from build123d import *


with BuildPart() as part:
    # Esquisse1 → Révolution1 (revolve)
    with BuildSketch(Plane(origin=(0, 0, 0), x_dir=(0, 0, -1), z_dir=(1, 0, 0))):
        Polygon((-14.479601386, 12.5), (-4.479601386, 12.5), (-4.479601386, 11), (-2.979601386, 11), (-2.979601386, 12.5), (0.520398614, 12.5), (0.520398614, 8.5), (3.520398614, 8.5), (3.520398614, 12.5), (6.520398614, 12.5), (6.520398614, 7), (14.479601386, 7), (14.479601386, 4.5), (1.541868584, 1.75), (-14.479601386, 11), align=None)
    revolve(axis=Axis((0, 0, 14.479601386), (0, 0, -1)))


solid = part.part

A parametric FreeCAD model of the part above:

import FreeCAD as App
import Part
import Sketcher

V = App.Vector
Q = App.Units.Quantity

doc = App.newDocument("Part")
params = doc.addObject("Spreadsheet::Sheet", "Params")
for row, (alias, value) in enumerate([
    ("sketch1_width", "4 mm"),
    ("sketch1_height", "10 mm"),
    ("sketch1_height2", "3 mm"),
    ("sketch1_width2", "1.5 mm"),
    ("sketch1_width3", "2.5 mm"),
    ("revolution_angle", "360 deg"),
], start=1):
    params.set(f"A{row}", alias)
    params.set(f"B{row}", "=" + value)
    params.setAlias(f"B{row}", alias)

body = doc.addObject("PartDesign::Body", "Body")

sketch1 = body.newObject("Sketcher::SketchObject", "Sketch")
sketch1.AttachmentSupport = (doc.getObject("YZ_Plane"), [""])
sketch1.MapMode = "FlatFace"
sketch1.addGeometry(Part.LineSegment(V(12.5, 4.5, 0), V(12.5, 14.5, 0)), False)
sketch1.addGeometry(Part.LineSegment(V(12.5, 14.5, 0), V(11, 14.5, 0)), False)
sketch1.addGeometry(Part.LineSegment(V(11, 14.5, 0), V(1.8, -1.5, 0)), False)
sketch1.addGeometry(Part.LineSegment(V(1.8, -1.5, 0), V(4.5, -14.5, 0)), False)
sketch1.addGeometry(Part.LineSegment(V(4.5, -14.5, 0), V(7, -14.5, 0)), False)
sketch1.addGeometry(Part.LineSegment(V(7, -14.5, 0), V(7, -6.5, 0)), False)
sketch1.addGeometry(Part.LineSegment(V(7, -6.5, 0), V(12.5, -6.5, 0)), False)
sketch1.addGeometry(Part.LineSegment(V(12.5, -6.5, 0), V(12.5, -3.5, 0)), False)
sketch1.addGeometry(Part.LineSegment(V(12.5, -3.5, 0), V(8.5, -3.5, 0)), False)
sketch1.addGeometry(Part.LineSegment(V(8.5, -3.5, 0), V(8.5, -0.5, 0)), False)
sketch1.addGeometry(Part.LineSegment(V(8.5, -0.5, 0), V(12.5, -0.5, 0)), False)
sketch1.addGeometry(Part.LineSegment(V(12.5, -0.5, 0), V(12.5, 3, 0)), False)
sketch1.addGeometry(Part.LineSegment(V(12.5, 3, 0), V(11, 3, 0)), False)
sketch1.addGeometry(Part.LineSegment(V(11, 3, 0), V(11, 4.5, 0)), False)
sketch1.addGeometry(Part.LineSegment(V(11, 4.5, 0), V(12.5, 4.5, 0)), False)
sketch1.addConstraint(Sketcher.Constraint("Coincident", 0, 2, 1, 1))
sketch1.addConstraint(Sketcher.Constraint("Coincident", 1, 2, 2, 1))
sketch1.addConstraint(Sketcher.Constraint("Coincident", 2, 2, 3, 1))
sketch1.addConstraint(Sketcher.Constraint("Coincident", 3, 2, 4, 1))
sketch1.addConstraint(Sketcher.Constraint("Coincident", 4, 2, 5, 1))
sketch1.addConstraint(Sketcher.Constraint("Coincident", 5, 2, 6, 1))
sketch1.addConstraint(Sketcher.Constraint("Coincident", 6, 2, 7, 1))
sketch1.addConstraint(Sketcher.Constraint("Coincident", 7, 2, 8, 1))
sketch1.addConstraint(Sketcher.Constraint("Coincident", 8, 2, 9, 1))
sketch1.addConstraint(Sketcher.Constraint("Coincident", 9, 2, 10, 1))
sketch1.addConstraint(Sketcher.Constraint("Coincident", 10, 2, 11, 1))
sketch1.addConstraint(Sketcher.Constraint("Coincident", 11, 2, 12, 1))
sketch1.addConstraint(Sketcher.Constraint("Coincident", 12, 2, 13, 1))
sketch1.addConstraint(Sketcher.Constraint("Coincident", 13, 2, 14, 1))
sketch1.addConstraint(Sketcher.Constraint("Coincident", 14, 2, 0, 1))
sketch1.addConstraint(Sketcher.Constraint("Vertical", 0))
sketch1.addConstraint(Sketcher.Constraint("Horizontal", 1))
sketch1.addConstraint(Sketcher.Constraint("Horizontal", 4))
sketch1.addConstraint(Sketcher.Constraint("Vertical", 5))
sketch1.addConstraint(Sketcher.Constraint("Horizontal", 6))
sketch1.addConstraint(Sketcher.Constraint("Vertical", 7))
sketch1.addConstraint(Sketcher.Constraint("Horizontal", 8))
sketch1.addConstraint(Sketcher.Constraint("Vertical", 9))
sketch1.addConstraint(Sketcher.Constraint("Horizontal", 10))
sketch1.addConstraint(Sketcher.Constraint("Vertical", 11))
sketch1.addConstraint(Sketcher.Constraint("Horizontal", 12))
sketch1.addConstraint(Sketcher.Constraint("Vertical", 13))
sketch1.addConstraint(Sketcher.Constraint("Horizontal", 14))
sketch1.addConstraint(Sketcher.Constraint("Vertical", 0, 2, 6, 2))
sketch1.addConstraint(Sketcher.Constraint("Vertical", 7, 2, 10, 2))
sketch1.addConstraint(Sketcher.Constraint("Vertical", 1, 2, 12, 2))
sketch1.addConstraint(Sketcher.Constraint("Equal", 7, 9))
sketch1.addConstraint(Sketcher.Constraint("Equal", 14, 13))
sketch1.addConstraint(Sketcher.Constraint("DistanceX", 8, 2, 8, 1, 4.0))
sketch1.addConstraint(Sketcher.Constraint("DistanceY", 0, 1, 0, 2, 10.0))
sketch1.addConstraint(Sketcher.Constraint("DistanceY", 7, 1, 7, 2, 3.0))
sketch1.addConstraint(Sketcher.Constraint("Angle", 2, Q("-120 deg")))
sketch1.addConstraint(Sketcher.Constraint("Angle", 3, Q("-78 deg")))
sketch1.addConstraint(Sketcher.Constraint("DistanceX", 1, 2, 1, 1, 1.5))
sketch1.addConstraint(Sketcher.Constraint("DistanceX", 4, 1, 4, 2, 2.5))
sketch1.addConstraint(Sketcher.Constraint("DistanceX", 6, 1, 6, 2, 5.5))
sketch1.addConstraint(Sketcher.Constraint("DistanceY", 11, 1, 11, 2, 3.5))
sketch1.addConstraint(Sketcher.Constraint("DistanceX", -1, 1, 1, 2, 11.0))
sketch1.addConstraint(Sketcher.Constraint("Distance", 2, 18.5))
sketch1.addConstraint(Sketcher.Constraint("DistanceY", -1, 1, 0, 2, 14.479601))
sketch1.setExpression("Constraints[33]", "Params.sketch1_width")
sketch1.setExpression("Constraints[34]", "Params.sketch1_height")
sketch1.setExpression("Constraints[35]", "Params.sketch1_height2")
sketch1.setExpression("Constraints[38]", "Params.sketch1_width2")
sketch1.setExpression("Constraints[39]", "Params.sketch1_width3")
revolution = body.newObject("PartDesign::Revolution", "Revolution")
revolution.Profile = sketch1
revolution.ReferenceAxis = (sketch1, ["V_Axis"])
revolution.setExpression("Angle", "Params.revolution_angle")

doc.recompute()
